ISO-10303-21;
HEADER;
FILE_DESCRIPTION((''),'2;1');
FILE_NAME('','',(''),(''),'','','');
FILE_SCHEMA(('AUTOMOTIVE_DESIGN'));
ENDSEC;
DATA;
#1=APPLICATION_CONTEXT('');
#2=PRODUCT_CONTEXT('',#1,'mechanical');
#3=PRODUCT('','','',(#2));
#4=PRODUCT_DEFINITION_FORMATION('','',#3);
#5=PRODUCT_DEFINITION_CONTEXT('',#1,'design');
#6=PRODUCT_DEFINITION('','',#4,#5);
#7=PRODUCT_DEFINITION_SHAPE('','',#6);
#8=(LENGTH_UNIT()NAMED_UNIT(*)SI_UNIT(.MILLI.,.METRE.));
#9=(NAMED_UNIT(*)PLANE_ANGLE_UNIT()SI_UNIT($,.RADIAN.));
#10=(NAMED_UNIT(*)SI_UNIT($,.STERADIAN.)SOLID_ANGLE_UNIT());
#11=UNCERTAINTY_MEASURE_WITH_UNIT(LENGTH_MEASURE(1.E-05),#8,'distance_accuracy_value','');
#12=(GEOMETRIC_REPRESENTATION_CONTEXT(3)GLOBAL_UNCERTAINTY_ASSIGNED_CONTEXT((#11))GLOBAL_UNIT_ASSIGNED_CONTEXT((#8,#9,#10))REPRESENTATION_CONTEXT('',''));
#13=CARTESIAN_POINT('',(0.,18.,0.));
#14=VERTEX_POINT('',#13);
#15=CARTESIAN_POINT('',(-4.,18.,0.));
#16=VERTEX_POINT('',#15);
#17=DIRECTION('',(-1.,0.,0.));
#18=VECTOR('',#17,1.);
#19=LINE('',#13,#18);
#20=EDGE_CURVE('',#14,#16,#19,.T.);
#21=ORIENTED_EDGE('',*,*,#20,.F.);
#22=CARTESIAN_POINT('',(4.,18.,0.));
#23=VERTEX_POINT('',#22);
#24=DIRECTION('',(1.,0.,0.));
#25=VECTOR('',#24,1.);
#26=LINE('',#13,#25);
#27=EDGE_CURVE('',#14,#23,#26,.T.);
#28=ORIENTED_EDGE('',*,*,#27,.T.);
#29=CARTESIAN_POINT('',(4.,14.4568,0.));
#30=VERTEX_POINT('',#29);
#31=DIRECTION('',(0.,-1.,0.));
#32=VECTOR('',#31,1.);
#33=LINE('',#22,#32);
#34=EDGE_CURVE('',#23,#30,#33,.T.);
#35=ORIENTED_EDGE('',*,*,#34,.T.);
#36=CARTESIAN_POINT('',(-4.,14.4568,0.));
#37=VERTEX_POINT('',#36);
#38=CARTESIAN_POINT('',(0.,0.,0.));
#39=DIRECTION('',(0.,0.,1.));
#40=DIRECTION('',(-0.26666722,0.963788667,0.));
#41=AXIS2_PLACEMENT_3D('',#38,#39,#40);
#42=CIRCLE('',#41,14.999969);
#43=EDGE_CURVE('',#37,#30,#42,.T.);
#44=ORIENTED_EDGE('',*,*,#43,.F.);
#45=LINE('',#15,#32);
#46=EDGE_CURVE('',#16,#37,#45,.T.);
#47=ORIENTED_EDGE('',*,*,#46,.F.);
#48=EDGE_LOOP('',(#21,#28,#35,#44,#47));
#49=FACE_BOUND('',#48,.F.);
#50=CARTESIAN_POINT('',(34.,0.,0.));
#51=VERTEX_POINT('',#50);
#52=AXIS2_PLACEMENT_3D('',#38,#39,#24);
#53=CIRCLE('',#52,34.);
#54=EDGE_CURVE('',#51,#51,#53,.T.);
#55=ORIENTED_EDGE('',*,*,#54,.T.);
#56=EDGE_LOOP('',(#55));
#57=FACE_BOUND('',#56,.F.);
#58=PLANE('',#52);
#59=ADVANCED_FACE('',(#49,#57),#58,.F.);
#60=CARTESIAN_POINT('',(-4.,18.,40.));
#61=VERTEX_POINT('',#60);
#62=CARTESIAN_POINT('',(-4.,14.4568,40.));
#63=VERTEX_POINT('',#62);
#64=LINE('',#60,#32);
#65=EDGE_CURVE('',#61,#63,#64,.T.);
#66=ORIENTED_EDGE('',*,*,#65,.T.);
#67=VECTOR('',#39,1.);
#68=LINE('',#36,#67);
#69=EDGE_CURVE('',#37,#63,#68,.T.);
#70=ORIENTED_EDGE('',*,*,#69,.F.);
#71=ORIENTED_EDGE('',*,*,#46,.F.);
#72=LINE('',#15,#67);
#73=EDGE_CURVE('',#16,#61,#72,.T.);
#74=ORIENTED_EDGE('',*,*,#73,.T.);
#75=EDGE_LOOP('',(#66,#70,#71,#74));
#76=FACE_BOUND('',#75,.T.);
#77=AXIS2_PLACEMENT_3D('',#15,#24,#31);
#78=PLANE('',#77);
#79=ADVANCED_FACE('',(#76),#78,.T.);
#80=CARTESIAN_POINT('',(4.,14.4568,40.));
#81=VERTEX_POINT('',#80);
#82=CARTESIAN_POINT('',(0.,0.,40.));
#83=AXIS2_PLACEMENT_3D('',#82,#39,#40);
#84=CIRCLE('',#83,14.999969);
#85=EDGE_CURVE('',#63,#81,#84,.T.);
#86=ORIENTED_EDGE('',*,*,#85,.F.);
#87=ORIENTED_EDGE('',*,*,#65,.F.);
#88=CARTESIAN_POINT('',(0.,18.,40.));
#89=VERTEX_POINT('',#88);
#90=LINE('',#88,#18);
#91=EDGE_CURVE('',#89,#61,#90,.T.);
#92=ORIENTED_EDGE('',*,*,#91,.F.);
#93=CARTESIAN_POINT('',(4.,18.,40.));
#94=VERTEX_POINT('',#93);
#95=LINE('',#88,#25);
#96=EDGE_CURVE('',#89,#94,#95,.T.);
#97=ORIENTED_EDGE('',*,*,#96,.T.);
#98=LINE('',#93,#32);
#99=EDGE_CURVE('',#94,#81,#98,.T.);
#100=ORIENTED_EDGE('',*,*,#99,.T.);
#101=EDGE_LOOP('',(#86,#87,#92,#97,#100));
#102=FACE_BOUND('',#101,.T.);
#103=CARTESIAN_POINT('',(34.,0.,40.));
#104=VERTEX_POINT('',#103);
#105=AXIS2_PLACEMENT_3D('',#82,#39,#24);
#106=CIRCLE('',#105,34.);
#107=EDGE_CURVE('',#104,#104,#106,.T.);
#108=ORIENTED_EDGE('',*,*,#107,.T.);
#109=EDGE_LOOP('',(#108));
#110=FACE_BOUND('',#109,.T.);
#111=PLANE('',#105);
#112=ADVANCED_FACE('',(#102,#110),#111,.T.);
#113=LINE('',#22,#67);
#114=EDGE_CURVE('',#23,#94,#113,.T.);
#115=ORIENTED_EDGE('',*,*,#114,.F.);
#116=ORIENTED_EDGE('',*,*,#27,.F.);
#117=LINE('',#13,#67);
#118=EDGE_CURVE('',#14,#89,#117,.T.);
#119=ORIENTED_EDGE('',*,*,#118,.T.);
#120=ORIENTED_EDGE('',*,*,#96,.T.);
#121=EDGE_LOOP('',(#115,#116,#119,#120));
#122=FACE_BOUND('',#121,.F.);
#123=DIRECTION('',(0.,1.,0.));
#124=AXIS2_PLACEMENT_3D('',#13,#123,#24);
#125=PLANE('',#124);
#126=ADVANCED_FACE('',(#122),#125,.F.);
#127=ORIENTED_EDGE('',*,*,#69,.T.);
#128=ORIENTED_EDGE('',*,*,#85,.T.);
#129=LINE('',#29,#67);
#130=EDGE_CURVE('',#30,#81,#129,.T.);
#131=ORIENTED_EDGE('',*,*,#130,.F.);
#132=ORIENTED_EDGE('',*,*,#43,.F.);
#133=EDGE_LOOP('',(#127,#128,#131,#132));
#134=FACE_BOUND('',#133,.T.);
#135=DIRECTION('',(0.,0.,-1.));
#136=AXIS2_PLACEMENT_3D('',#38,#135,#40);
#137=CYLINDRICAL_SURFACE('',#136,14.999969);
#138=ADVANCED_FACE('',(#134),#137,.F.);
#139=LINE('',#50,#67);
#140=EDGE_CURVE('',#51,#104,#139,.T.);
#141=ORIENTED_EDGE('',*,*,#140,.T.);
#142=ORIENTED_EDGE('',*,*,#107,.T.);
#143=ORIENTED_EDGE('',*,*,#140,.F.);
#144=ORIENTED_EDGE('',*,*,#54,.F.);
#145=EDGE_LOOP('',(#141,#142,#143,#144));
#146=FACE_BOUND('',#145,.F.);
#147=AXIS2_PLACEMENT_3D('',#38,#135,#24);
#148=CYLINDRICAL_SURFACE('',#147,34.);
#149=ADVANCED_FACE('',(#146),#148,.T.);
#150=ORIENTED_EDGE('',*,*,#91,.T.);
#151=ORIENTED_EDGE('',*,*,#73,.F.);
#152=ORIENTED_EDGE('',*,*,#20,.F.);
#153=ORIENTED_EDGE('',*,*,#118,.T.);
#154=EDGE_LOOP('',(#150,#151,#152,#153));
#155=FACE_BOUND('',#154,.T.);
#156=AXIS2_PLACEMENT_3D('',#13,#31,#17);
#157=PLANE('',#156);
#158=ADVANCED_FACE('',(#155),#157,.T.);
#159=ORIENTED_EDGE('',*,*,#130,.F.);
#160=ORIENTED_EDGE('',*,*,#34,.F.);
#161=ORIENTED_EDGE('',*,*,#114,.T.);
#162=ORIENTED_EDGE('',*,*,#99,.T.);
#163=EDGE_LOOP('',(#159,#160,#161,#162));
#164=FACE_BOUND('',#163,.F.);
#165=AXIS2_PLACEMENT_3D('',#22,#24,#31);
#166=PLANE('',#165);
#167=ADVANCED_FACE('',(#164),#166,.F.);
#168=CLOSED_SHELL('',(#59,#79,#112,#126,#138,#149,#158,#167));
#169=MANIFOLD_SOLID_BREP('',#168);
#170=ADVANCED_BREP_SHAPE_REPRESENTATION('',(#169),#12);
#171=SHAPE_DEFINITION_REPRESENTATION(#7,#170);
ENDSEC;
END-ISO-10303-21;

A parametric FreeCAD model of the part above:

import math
import FreeCAD as App
import Part
import Sketcher
from FreeCAD import Vector

doc = App.newDocument("Part")
body = doc.addObject("PartDesign::Body", "Body")

# Sketch on XY plane
sketch1 = body.newObject("Sketcher::SketchObject", "Sketch")
sketch1.AttachmentSupport = (doc.getObject("XY_Plane"), [""])
sketch1.MapMode = "FlatFace"
sketch1.addGeometry([
    Part.Circle(Vector(0, 0, 0), Vector(0, 0, 1), 34),  # 0
    Part.ArcOfCircle(Part.Circle(Vector(0, 0, 0), Vector(0, 0, 1), 15), math.radians(105), math.radians(435)),  # 1
    Part.LineSegment(Vector(-4, 14.5, 0), Vector(-4, 18, 0)),  # 2
    Part.LineSegment(Vector(-4, 18, 0), Vector(4, 18, 0)),  # 3
    Part.LineSegment(Vector(4, 18, 0), Vector(4, 14.5, 0)),  # 4
], False)
sketch1.addConstraint([
    Sketcher.Constraint("Coincident", 1, 1, 2, 1),
    Sketcher.Constraint("Coincident", 2, 2, 3, 1),
    Sketcher.Constraint("Coincident", 3, 2, 4, 1),
    Sketcher.Constraint("Coincident", 4, 2, 1, 2),
    Sketcher.Constraint("Vertical", 2),
    Sketcher.Constraint("Horizontal", 3),
    Sketcher.Constraint("Vertical", 4),
    Sketcher.Constraint("Coincident", 0, 3, -1, 1),
    Sketcher.Constraint("Coincident", 1, 3, -1, 1),
    Sketcher.Constraint("Horizontal", 1, 1, 4, 2),
    Sketcher.Constraint("Diameter", 0, 68.0),
    Sketcher.Constraint("Radius", 1, 15.0),
    Sketcher.Constraint("DistanceX", 1, 1, -1, 1, 4.0),
    Sketcher.Constraint("DistanceY", -1, 1, 2, 2, 18.0),
])
pad1 = body.newObject("PartDesign::Pad", "Pad")
pad1.Profile = sketch1
pad1.Length = 40

doc.recompute()
